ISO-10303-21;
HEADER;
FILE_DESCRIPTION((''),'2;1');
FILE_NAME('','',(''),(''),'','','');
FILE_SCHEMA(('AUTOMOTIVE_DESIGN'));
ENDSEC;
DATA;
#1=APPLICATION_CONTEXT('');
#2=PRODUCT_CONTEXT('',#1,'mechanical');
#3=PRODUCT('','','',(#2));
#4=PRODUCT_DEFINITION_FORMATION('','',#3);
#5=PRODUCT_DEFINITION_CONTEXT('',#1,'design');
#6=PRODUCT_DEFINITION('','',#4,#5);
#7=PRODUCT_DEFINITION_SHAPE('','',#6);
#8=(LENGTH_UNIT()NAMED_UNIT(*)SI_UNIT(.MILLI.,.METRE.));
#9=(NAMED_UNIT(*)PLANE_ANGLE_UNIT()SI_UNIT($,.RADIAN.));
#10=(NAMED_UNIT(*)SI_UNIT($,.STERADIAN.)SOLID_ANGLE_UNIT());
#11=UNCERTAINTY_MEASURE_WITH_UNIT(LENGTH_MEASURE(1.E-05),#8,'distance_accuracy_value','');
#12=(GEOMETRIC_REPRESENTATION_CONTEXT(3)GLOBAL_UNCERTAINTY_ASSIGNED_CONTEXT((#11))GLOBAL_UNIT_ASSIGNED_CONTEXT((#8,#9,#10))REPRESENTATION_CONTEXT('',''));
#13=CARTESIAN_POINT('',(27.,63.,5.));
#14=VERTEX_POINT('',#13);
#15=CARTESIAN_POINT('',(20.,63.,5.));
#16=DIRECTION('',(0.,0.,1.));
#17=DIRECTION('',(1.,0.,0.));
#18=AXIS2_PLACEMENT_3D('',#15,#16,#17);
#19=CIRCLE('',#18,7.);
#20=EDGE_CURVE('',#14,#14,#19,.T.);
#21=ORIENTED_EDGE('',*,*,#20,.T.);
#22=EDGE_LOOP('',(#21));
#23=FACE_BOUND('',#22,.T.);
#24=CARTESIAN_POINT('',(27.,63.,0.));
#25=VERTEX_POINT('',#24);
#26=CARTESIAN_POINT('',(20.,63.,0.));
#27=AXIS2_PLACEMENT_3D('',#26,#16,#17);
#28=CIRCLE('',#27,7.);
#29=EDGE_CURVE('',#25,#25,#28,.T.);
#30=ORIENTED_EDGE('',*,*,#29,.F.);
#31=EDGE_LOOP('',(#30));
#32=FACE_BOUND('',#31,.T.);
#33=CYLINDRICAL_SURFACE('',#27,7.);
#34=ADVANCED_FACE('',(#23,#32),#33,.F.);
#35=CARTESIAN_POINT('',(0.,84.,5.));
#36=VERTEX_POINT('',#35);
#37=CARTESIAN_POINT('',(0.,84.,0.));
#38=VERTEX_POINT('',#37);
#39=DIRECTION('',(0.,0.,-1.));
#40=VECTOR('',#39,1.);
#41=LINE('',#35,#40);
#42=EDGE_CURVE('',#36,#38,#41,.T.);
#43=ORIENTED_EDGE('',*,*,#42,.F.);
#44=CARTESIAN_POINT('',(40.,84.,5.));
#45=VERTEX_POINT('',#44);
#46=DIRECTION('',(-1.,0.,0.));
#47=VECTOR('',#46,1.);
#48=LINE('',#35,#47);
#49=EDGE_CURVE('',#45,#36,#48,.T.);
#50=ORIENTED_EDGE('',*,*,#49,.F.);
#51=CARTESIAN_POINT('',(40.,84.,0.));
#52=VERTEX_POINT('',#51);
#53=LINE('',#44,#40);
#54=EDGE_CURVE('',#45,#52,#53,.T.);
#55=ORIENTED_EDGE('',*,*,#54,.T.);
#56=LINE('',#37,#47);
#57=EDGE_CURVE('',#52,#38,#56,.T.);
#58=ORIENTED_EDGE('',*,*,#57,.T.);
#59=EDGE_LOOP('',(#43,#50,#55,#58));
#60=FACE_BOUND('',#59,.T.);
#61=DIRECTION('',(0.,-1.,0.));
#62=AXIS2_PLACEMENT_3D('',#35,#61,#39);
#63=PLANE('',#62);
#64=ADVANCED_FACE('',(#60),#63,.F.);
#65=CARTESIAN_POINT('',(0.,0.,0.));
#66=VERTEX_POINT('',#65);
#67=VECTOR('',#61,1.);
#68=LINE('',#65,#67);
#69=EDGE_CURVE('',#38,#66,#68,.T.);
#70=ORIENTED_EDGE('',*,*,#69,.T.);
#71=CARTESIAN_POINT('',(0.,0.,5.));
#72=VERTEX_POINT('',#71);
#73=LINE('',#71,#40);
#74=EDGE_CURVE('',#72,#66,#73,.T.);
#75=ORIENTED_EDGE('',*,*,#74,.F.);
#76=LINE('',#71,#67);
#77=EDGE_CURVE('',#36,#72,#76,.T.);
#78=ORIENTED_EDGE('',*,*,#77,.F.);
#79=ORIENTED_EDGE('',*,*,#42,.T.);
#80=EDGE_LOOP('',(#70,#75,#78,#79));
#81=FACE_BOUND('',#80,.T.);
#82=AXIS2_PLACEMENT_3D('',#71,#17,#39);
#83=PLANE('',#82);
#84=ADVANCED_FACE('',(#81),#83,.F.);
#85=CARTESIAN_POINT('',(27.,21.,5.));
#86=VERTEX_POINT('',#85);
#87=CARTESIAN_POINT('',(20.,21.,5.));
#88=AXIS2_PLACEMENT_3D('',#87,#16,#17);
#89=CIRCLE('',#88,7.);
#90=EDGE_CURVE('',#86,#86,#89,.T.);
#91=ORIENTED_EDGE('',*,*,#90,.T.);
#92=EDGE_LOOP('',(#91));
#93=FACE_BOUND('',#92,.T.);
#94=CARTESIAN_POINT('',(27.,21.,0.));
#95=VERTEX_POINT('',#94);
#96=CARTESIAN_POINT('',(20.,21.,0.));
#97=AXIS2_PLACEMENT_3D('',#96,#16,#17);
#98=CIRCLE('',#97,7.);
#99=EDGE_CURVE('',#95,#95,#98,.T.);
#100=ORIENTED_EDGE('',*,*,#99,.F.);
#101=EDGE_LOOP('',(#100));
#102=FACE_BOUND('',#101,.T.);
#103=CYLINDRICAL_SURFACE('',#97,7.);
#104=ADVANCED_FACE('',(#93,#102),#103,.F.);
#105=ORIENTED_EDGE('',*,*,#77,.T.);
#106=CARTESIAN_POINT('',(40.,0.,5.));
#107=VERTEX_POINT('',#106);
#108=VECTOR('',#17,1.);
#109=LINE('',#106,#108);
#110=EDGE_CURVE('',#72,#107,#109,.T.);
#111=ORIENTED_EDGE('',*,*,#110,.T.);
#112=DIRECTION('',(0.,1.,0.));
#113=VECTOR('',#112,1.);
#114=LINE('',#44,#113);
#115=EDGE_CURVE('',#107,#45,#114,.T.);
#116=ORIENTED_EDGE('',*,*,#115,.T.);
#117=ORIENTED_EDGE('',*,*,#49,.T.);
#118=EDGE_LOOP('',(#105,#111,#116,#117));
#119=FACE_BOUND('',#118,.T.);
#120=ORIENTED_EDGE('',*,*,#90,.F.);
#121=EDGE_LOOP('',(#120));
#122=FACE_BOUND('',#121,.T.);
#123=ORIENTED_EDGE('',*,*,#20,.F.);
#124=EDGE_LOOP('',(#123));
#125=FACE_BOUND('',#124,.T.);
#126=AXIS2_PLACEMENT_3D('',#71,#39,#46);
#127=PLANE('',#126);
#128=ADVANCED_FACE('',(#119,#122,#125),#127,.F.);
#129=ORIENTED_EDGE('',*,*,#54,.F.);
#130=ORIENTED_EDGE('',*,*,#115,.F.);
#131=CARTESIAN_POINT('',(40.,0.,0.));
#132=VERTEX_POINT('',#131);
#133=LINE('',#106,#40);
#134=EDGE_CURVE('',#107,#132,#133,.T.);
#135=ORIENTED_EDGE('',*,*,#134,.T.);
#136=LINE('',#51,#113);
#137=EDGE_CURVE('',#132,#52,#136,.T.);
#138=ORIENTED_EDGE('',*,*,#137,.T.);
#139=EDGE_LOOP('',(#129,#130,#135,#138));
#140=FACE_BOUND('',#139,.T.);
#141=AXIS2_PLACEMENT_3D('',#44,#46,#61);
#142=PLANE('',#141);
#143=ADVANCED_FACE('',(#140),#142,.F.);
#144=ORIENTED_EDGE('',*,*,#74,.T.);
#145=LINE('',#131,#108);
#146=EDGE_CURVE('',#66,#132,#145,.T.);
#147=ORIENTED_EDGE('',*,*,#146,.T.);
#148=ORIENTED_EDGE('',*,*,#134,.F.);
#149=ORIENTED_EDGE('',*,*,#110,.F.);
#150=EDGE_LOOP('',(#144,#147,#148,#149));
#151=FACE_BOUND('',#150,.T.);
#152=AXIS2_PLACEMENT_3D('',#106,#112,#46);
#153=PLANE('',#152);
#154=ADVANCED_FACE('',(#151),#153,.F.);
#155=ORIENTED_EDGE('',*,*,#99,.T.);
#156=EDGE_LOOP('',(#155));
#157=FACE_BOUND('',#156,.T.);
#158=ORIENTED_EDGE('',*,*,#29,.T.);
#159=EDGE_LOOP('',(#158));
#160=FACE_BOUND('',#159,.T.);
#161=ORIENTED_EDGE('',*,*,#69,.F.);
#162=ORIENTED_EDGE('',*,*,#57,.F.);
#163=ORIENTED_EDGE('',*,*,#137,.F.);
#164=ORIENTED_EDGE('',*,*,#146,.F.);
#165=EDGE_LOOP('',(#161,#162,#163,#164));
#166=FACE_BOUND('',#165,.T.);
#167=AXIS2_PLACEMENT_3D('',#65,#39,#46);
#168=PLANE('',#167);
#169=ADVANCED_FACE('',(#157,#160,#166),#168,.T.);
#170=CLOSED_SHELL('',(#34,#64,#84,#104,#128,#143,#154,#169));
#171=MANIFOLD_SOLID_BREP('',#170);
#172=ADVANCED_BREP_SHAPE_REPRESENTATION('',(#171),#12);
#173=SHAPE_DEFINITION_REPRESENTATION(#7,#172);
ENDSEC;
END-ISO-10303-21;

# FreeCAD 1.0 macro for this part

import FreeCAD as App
import Part
import Sketcher

doc = App.newDocument("Part")
body = doc.addObject("PartDesign::Body", "Body")

sketch1 = body.newObject("Sketcher::SketchObject", "Sketch")
sketch1.AttachmentSupport = (doc.getObject("XY_Plane"), [""])
sketch1.MapMode = "FlatFace"
sketch1.addGeometry([
    Part.LineSegment(App.Vector(0, 84, 0), App.Vector(0, 0, 0)),
    Part.LineSegment(App.Vector(0, 0, 0), App.Vector(40, 0, 0)),
    Part.LineSegment(App.Vector(40, 0, 0), App.Vector(40, 84, 0)),
    Part.LineSegment(App.Vector(40, 84, 0), App.Vector(0, 84, 0)),
], False)
sketch1.addConstraint([
    Sketcher.Constraint("Coincident", 0, 2, 1, 1),
    Sketcher.Constraint("Coincident", 1, 2, 2, 1),
    Sketcher.Constraint("Coincident", 2, 2, 3, 1),
    Sketcher.Constraint("Coincident", 3, 2, 0, 1),
    Sketcher.Constraint("Vertical", 0),
    Sketcher.Constraint("Horizontal", 1),
    Sketcher.Constraint("Vertical", 2),
    Sketcher.Constraint("Horizontal", 3),
    Sketcher.Constraint("Coincident", 0, 2, -1, 1),
    Sketcher.Constraint("DistanceX", 1, 1, 1, 2, 40.0),
    Sketcher.Constraint("DistanceY", 0, 2, 0, 1, 84.0),
])
pad1 = body.newObject("PartDesign::Pad", "Pad")
pad1.Profile = sketch1
pad1.Length = 5

sketch2 = body.newObject("Sketcher::SketchObject", "Sketch001")
sketch2.AttachmentSupport = (doc.getObject("XY_Plane"), [""])
sketch2.MapMode = "FlatFace"
sketch2.AttachmentOffset = App.Placement(App.Vector(0, 0, 5), App.Rotation())
sketch2.addGeometry(Part.Circle(App.Vector(20, 63, 0), App.Vector(0, 0, 1), 7), False)
sketch2.addConstraint([
    Sketcher.Constraint("Diameter", 0, 14.0),
    Sketcher.Constraint("DistanceX", -1, 1, 0, 3, 20.0),
    Sketcher.Constraint("DistanceY", -1, 1, 0, 3, 63.0),
])
pocket1 = body.newObject("PartDesign::Pocket", "Pocket")
pocket1.Profile = sketch2
pocket1.Length = 5

sketch3 = body.newObject("Sketcher::SketchObject", "Sketch002")
sketch3.AttachmentSupport = (doc.getObject("XY_Plane"), [""])
sketch3.MapMode = "FlatFace"
sketch3.AttachmentOffset = App.Placement(App.Vector(0, 0, 5), App.Rotation())
sketch3.addGeometry(Part.Circle(App.Vector(20, 21, 0), App.Vector(0, 0, 1), 7), False)
sketch3.addConstraint([
    Sketcher.Constraint("Diameter", 0, 14.0),
    Sketcher.Constraint("DistanceX", -1, 1, 0, 3, 20.0),
    Sketcher.Constraint("DistanceY", -1, 1, 0, 3, 21.0),
])
pocket2 = body.newObject("PartDesign::Pocket", "Pocket001")
pocket2.Profile = sketch3
pocket2.Length = 5

doc.recompute()
